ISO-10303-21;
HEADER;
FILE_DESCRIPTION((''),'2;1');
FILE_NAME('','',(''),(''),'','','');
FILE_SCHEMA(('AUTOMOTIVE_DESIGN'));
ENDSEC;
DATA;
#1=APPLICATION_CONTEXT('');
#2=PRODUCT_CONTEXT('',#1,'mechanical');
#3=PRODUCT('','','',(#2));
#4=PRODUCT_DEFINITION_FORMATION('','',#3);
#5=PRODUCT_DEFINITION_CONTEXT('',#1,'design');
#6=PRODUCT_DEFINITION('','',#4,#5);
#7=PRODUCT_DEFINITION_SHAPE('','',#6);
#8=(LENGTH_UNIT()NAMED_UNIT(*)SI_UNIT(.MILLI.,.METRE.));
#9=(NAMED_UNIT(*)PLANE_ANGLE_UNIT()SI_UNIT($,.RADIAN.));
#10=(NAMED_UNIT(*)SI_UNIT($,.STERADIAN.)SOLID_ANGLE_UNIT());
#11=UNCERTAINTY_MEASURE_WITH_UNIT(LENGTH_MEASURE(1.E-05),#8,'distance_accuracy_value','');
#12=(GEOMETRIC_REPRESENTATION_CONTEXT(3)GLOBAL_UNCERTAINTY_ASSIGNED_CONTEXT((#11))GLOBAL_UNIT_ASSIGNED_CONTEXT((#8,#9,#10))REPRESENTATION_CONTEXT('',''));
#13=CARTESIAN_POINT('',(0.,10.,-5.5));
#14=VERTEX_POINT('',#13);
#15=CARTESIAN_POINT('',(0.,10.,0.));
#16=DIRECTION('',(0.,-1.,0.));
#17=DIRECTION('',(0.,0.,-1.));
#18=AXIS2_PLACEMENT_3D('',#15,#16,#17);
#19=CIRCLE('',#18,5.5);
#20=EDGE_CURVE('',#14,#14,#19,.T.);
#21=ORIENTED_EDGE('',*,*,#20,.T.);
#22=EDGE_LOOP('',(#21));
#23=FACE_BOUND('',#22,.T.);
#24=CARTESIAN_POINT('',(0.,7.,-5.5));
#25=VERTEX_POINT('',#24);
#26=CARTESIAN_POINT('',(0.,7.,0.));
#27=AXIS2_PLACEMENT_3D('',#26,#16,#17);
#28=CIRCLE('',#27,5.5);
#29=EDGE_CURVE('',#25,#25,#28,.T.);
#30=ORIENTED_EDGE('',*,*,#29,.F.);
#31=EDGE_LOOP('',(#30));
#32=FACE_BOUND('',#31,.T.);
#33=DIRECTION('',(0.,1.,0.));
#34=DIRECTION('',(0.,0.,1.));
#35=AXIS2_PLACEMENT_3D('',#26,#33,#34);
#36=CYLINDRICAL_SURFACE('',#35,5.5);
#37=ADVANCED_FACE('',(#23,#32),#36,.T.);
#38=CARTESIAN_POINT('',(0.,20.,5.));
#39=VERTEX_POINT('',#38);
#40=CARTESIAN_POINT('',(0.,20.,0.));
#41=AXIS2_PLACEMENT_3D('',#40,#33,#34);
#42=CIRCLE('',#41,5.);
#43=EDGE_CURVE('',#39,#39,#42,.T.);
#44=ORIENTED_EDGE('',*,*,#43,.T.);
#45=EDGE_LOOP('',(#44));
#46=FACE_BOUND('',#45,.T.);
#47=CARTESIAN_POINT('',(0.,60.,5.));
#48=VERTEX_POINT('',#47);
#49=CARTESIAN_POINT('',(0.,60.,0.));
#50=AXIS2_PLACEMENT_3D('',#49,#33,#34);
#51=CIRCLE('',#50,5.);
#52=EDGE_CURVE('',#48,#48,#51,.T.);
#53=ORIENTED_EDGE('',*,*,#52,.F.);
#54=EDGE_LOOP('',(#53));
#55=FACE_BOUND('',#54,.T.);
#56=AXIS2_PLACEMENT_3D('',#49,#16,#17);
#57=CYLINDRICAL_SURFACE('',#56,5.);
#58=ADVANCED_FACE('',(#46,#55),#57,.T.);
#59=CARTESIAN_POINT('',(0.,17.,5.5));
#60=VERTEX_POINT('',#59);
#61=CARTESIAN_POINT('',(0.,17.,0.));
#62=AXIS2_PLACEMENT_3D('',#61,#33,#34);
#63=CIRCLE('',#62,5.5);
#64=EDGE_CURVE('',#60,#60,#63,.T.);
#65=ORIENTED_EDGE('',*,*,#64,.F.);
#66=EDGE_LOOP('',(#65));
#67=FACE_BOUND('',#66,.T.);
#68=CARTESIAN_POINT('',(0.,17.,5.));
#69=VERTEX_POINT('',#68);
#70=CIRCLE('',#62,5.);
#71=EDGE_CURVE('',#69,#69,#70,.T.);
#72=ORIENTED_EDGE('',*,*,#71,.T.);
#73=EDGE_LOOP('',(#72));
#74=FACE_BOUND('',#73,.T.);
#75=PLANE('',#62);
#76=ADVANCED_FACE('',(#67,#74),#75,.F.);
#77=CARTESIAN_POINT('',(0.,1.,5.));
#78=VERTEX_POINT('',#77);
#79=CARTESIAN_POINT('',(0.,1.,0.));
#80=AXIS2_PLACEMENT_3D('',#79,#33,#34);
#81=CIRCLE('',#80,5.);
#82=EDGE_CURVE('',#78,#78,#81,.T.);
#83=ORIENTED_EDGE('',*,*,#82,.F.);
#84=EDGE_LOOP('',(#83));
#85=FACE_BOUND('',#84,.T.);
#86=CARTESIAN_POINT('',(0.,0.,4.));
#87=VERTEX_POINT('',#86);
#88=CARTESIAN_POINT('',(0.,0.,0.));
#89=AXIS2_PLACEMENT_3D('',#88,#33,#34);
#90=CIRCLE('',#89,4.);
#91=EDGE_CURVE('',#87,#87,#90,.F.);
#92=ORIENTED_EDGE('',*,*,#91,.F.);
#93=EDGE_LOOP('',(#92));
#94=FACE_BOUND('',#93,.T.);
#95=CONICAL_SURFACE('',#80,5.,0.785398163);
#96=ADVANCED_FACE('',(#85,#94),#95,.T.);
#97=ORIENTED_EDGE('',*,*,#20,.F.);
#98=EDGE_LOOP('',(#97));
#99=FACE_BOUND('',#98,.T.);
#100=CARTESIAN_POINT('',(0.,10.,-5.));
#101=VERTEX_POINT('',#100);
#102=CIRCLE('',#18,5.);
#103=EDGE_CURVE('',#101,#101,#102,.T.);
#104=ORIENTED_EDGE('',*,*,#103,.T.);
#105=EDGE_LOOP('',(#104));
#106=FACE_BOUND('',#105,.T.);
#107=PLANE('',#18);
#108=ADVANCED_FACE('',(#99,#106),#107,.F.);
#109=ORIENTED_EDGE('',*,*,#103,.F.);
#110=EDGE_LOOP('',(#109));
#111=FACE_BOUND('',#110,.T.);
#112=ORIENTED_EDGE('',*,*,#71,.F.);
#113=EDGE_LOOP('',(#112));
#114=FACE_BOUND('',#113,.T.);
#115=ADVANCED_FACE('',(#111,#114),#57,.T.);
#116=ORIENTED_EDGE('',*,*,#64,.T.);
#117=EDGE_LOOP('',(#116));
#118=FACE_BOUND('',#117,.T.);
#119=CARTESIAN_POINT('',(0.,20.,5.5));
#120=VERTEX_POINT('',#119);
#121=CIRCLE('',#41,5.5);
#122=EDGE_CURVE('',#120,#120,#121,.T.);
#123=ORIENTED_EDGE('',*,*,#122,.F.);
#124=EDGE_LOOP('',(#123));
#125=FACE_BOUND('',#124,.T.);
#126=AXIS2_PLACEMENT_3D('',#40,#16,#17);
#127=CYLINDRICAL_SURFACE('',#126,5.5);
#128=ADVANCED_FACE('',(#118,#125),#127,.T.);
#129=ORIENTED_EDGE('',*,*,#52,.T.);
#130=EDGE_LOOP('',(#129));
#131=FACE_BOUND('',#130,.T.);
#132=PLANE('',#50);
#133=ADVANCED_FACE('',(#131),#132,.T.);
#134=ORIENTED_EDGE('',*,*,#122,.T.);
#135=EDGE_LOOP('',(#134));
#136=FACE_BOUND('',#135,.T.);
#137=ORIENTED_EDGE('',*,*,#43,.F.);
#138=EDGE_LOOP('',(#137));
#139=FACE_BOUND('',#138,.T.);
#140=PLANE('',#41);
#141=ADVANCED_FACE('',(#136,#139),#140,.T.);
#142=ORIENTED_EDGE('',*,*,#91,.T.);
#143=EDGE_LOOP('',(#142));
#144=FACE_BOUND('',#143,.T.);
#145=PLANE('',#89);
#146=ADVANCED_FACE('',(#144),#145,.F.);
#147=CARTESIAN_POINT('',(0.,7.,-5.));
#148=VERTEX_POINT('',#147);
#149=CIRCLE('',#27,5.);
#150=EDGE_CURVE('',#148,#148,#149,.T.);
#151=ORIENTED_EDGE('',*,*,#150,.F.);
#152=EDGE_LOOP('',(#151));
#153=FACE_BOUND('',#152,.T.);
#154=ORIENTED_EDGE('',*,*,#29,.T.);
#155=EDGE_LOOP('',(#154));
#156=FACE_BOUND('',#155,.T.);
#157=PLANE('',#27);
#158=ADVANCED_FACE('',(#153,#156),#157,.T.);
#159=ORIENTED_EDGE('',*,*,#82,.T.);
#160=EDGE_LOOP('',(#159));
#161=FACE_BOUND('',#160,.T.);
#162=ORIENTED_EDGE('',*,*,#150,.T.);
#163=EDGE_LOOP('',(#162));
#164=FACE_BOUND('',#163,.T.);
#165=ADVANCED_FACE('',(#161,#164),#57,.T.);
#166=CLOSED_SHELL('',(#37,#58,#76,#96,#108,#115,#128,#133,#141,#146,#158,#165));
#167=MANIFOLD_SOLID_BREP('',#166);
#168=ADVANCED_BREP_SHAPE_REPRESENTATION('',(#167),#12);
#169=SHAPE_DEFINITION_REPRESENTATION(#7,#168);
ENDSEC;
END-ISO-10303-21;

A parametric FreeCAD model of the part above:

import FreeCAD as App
import Part
import Sketcher

V = App.Vector
Q = App.Units.Quantity


def edges_at(feature, points):
    """Names of the edges that pass closest to the given points."""
    edges = feature.Shape.Edges
    near = lambda p: min(range(len(edges)), key=lambda i: edges[i].distToShape(Part.Vertex(*p))[0])
    return sorted({f"Edge{near(p) + 1}" for p in points})

doc = App.newDocument("Part")
body = doc.addObject("PartDesign::Body", "Body")

# Sketch on XZ plane
sketch1 = doc.addObject("Sketcher::SketchObject", "Sketch")
body.addObject(sketch1)
sketch1.AttachmentSupport = (doc.XZ_Plane, [""])
sketch1.MapMode = "FlatFace"
sketch1.addGeometry(Part.Circle(V(0, 0, 0), V(0, 0, 1), 5), False)
sketch1.addConstraint([
    Sketcher.Constraint("Coincident", 0, 3, -1, 1),
    Sketcher.Constraint("Diameter", 0, Q("10 mm")),
])
pad1 = doc.addObject("PartDesign::Pad", "Pad")
body.addObject(pad1)
pad1.Profile = sketch1
pad1.Length = 60
pad1.Reversed = True

# Sketch on XZ plane
sketch2 = doc.addObject("Sketcher::SketchObject", "Sketch001")
body.addObject(sketch2)
sketch2.AttachmentSupport = (doc.XZ_Plane, [""])
sketch2.MapMode = "FlatFace"
sketch2.AttachmentOffset = App.Placement(V(0, 0, -17), App.Rotation())
sketch2.addGeometry(Part.Circle(V(0, 0, 0), V(0, 0, 1), 6), False)
sketch2.addConstraint([
    Sketcher.Constraint("Coincident", 0, 3, -1, 1),
    Sketcher.Constraint("Diameter", 0, Q("11 mm")),
])
pad2 = doc.addObject("PartDesign::Pad", "Pad001")
body.addObject(pad2)
pad2.Profile = sketch2
pad2.Length = 3
pad2.Reversed = True
doc.recompute()

chamfer = doc.addObject("PartDesign::Chamfer", "Chamfer")
body.addObject(chamfer)
chamfer.Base = (pad2, edges_at(pad2, [(0, 0, -5)]))
chamfer.Size = 1

# Sketch on XZ plane
sketch3 = doc.addObject("Sketcher::SketchObject", "Sketch002")
body.addObject(sketch3)
sketch3.AttachmentSupport = (doc.XZ_Plane, [""])
sketch3.MapMode = "FlatFace"
sketch3.AttachmentOffset = App.Placement(V(0, 0, -7), App.Rotation())
sketch3.addGeometry(Part.Circle(V(0, 0, 0), V(0, 0, 1), 6), False)
sketch3.addConstraint([
    Sketcher.Constraint("Coincident", 0, 3, -1, 1),
    Sketcher.Constraint("Diameter", 0, Q("11 mm")),
])
pad3 = doc.addObject("PartDesign::Pad", "Pad002")
body.addObject(pad3)
pad3.Profile = sketch3
pad3.Length = 3
pad3.Reversed = True

doc.recompute()
